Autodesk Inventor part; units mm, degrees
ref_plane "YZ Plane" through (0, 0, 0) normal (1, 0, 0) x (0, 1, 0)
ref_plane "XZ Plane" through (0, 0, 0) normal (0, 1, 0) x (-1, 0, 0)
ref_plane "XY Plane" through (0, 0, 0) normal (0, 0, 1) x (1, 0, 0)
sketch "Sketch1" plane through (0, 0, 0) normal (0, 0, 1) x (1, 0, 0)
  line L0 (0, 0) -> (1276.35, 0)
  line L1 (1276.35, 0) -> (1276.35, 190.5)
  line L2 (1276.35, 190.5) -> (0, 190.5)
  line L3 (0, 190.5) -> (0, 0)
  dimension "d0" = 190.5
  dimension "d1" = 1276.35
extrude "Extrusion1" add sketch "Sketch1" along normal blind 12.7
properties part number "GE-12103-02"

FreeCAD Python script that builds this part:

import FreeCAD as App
import Part
import Sketcher

V = App.Vector
Q = App.Units.Quantity

doc = App.newDocument("Part")
body = doc.addObject("PartDesign::Body", "Body")

# Sketch on XY plane
sketch1 = body.newObject("Sketcher::SketchObject", "Sketch")
sketch1.AttachmentSupport = (doc.getObject("XY_Plane"), [""])
sketch1.MapMode = "FlatFace"
sketch1.addGeometry(Part.LineSegment(V(0, 190.5, 0), V(0, 0, 0)), False)
sketch1.addGeometry(Part.LineSegment(V(0, 0, 0), V(1276.35, 0, 0)), False)
sketch1.addGeometry(Part.LineSegment(V(1276.35, 0, 0), V(1276.35, 190.5, 0)), False)
sketch1.addGeometry(Part.LineSegment(V(1276.35, 190.5, 0), V(0, 190.5, 0)), False)
sketch1.addConstraint(Sketcher.Constraint("Coincident", 0, 2, 1, 1))
sketch1.addConstraint(Sketcher.Constraint("Coincident", 1, 2, 2, 1))
sketch1.addConstraint(Sketcher.Constraint("Coincident", 2, 2, 3, 1))
sketch1.addConstraint(Sketcher.Constraint("Coincident", 3, 2, 0, 1))
sketch1.addConstraint(Sketcher.Constraint("Vertical", 0))
sketch1.addConstraint(Sketcher.Constraint("Horizontal", 1))
sketch1.addConstraint(Sketcher.Constraint("Vertical", 2))
sketch1.addConstraint(Sketcher.Constraint("Horizontal", 3))
sketch1.addConstraint(Sketcher.Constraint("Coincident", 0, 2, -1, 1))
sketch1.addConstraint(Sketcher.Constraint("DistanceY", 0, 2, 0, 1, Q("7.5 in")))
sketch1.addConstraint(Sketcher.Constraint("DistanceX", 1, 1, 1, 2, Q("50.25 in")))
pad1 = body.newObject("PartDesign::Pad", "Pad")
pad1.Profile = sketch1
pad1.Length = Q("0.5 in")

doc.recompute()
